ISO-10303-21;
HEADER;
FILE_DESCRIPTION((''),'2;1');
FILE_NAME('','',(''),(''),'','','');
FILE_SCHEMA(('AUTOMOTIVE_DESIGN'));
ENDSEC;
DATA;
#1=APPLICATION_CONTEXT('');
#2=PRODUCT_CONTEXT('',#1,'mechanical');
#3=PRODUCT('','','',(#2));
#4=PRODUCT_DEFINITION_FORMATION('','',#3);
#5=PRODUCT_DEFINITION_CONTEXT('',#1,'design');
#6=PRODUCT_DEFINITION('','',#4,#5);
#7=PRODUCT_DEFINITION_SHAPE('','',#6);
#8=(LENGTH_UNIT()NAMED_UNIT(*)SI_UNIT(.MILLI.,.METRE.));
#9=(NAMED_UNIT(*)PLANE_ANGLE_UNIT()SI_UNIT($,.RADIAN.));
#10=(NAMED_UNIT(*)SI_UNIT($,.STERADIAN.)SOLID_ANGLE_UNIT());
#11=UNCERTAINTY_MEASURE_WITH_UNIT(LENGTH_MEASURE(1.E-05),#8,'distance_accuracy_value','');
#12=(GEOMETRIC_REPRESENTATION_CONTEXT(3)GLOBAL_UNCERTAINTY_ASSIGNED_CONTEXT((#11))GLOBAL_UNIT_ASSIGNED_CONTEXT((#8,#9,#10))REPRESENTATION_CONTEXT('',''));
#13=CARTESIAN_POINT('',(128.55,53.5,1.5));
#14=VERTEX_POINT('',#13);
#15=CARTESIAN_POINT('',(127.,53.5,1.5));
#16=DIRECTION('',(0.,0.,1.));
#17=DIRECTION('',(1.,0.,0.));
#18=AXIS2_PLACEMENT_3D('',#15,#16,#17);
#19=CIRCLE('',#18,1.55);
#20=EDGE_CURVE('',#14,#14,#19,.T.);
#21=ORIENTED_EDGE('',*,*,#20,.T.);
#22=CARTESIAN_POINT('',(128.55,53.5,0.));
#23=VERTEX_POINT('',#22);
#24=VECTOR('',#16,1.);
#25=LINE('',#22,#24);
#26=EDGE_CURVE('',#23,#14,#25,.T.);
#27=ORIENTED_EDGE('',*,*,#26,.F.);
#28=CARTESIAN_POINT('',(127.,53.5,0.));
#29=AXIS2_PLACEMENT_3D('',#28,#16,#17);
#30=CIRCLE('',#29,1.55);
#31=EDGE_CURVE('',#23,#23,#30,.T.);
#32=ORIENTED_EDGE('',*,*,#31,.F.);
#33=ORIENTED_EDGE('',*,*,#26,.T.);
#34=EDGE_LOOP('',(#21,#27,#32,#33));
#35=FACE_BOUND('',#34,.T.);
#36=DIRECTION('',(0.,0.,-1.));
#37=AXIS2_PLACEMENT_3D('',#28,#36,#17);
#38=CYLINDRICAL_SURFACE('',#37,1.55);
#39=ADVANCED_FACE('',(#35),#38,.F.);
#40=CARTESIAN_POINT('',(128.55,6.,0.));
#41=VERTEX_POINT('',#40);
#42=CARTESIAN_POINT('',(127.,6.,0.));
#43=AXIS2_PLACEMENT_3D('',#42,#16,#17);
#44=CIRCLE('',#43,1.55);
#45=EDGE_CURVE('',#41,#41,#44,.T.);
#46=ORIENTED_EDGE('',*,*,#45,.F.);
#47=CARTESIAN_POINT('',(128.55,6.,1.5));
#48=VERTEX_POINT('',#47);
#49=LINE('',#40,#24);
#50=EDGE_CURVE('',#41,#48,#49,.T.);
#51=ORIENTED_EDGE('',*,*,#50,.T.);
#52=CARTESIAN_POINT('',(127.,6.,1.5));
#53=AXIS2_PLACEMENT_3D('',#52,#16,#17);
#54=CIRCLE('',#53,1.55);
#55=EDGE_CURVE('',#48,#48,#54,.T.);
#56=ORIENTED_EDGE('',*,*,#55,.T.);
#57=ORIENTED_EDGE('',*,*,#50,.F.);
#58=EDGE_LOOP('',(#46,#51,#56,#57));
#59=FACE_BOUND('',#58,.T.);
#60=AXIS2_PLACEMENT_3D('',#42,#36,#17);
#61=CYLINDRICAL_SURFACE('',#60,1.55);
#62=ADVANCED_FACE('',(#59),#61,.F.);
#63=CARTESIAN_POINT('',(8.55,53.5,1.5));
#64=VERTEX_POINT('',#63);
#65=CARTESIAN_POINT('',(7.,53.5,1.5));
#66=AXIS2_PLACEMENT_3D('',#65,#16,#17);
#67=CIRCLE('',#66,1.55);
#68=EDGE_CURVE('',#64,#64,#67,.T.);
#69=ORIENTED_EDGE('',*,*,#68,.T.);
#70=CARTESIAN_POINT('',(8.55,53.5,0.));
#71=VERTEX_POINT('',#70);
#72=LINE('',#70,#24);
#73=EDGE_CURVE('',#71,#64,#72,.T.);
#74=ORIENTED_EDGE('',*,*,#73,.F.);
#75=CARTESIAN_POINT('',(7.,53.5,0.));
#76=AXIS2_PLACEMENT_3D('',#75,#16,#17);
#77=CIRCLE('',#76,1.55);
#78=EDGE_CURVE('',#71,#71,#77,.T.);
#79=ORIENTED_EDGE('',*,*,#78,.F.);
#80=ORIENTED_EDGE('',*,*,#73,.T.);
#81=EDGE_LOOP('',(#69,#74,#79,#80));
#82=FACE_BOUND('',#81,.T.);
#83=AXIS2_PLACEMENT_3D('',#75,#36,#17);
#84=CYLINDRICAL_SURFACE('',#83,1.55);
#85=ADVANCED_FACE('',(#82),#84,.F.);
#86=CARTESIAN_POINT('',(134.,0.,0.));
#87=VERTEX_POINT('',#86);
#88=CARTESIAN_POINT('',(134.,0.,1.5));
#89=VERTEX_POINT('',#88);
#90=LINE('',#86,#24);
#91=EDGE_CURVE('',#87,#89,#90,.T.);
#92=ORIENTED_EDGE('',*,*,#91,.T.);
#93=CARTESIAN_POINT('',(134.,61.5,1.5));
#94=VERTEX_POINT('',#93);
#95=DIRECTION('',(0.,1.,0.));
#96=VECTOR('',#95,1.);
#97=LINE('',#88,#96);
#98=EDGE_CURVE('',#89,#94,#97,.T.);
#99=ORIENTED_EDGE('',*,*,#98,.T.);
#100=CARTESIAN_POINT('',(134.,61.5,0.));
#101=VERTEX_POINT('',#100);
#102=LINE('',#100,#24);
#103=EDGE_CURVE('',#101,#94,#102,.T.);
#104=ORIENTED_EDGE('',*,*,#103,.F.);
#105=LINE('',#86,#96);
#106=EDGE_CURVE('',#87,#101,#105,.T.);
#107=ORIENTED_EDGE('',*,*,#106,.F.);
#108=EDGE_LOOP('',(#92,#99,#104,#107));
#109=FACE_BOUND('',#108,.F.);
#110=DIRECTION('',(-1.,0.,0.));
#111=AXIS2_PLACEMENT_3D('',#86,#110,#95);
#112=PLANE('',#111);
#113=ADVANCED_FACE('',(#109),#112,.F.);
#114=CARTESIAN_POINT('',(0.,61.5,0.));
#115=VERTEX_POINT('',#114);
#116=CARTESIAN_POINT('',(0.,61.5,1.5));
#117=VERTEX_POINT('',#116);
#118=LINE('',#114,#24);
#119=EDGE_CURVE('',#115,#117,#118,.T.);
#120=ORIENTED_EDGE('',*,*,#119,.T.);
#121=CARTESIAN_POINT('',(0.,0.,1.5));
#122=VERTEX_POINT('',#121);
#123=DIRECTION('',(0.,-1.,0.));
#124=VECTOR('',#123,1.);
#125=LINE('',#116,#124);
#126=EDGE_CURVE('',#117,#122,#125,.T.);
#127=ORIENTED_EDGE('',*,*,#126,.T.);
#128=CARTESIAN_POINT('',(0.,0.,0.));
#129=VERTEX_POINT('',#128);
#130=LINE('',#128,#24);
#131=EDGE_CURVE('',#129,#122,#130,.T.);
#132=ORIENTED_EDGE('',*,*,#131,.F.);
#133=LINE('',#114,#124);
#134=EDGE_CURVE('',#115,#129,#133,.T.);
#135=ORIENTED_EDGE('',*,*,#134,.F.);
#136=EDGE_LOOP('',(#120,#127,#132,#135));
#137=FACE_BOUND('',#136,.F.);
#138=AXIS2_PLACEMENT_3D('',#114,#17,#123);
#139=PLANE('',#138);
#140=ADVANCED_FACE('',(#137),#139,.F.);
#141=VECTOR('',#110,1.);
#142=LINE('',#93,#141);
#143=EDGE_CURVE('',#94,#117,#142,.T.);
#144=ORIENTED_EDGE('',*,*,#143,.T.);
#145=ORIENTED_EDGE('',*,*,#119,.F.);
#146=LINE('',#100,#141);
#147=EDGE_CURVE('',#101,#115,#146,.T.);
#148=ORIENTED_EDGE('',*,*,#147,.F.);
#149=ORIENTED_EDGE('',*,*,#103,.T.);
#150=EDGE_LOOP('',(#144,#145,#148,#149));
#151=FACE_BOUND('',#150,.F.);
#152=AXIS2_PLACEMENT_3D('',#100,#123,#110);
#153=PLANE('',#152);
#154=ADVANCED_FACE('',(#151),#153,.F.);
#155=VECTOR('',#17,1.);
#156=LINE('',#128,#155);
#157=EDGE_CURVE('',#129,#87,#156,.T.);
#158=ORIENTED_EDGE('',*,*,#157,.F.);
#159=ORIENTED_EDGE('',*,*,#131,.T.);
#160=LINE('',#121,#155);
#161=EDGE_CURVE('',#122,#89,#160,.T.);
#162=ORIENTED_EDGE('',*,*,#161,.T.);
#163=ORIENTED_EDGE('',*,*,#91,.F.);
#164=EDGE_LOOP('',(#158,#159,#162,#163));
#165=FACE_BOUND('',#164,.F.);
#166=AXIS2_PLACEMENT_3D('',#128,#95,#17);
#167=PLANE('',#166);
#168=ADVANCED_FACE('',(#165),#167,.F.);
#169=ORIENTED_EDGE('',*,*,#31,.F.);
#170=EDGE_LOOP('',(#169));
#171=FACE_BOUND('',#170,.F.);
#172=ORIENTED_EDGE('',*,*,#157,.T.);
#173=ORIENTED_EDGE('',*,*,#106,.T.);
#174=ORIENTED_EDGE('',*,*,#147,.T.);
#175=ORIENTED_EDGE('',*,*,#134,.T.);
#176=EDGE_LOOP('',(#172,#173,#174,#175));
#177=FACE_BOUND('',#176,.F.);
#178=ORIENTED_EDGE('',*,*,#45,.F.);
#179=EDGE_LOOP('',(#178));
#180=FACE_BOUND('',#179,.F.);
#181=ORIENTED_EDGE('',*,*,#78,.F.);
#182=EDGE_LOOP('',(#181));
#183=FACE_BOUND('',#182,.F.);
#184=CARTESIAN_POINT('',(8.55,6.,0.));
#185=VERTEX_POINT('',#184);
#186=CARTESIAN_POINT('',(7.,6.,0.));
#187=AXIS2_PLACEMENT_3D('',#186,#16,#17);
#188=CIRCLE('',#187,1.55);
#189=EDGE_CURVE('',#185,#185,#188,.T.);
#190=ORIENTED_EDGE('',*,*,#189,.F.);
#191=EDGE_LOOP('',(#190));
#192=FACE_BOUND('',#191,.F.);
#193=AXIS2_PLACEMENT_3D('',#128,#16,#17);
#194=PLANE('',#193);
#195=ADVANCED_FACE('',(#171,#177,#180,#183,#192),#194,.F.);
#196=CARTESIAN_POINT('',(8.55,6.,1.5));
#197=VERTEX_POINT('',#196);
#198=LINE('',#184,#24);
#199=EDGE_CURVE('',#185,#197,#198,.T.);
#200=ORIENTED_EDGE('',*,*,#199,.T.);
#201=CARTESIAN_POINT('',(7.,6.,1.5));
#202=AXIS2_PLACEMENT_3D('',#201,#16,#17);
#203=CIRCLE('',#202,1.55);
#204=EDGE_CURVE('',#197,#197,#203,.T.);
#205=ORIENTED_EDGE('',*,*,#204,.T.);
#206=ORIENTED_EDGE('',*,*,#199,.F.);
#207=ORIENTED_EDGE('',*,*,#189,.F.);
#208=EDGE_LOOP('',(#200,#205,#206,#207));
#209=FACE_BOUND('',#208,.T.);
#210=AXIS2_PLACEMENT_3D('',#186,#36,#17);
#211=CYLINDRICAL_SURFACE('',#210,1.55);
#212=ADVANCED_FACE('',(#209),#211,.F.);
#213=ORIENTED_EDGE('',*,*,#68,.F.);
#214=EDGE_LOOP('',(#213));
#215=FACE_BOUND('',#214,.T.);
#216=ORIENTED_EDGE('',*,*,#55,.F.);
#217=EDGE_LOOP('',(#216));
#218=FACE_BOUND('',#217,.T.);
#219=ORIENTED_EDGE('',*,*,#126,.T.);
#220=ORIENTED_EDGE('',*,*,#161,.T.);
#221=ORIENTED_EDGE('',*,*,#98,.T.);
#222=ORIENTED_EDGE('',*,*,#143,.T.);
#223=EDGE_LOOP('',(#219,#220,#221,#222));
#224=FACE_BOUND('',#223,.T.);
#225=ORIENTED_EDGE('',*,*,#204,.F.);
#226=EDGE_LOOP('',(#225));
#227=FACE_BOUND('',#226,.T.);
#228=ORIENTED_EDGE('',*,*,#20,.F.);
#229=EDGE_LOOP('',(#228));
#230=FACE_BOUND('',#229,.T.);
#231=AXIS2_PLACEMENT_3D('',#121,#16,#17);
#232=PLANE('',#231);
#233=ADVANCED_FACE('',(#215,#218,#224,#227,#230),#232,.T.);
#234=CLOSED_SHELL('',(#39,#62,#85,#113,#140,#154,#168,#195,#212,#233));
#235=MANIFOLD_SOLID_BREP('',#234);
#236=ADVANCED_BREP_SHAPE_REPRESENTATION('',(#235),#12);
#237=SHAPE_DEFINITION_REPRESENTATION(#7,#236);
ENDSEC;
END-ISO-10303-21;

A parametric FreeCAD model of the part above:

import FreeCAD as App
import Part
import Sketcher

doc = App.newDocument("Part")
body = doc.addObject("PartDesign::Body", "Body")

sketch1 = doc.addObject("Sketcher::SketchObject", "Sketch")
body.addObject(sketch1)
sketch1.AttachmentSupport = (doc.XY_Plane, [""])
sketch1.MapMode = "FlatFace"
sketch1.addGeometry(Part.LineSegment(App.Vector(0, 61.5, 0), App.Vector(0, 0, 0)), False)
sketch1.addGeometry(Part.LineSegment(App.Vector(0, 0, 0), App.Vector(134, 0, 0)), False)
sketch1.addGeometry(Part.LineSegment(App.Vector(134, 0, 0), App.Vector(134, 61.5, 0)), False)
sketch1.addGeometry(Part.LineSegment(App.Vector(134, 61.5, 0), App.Vector(0, 61.5, 0)), False)
sketch1.addGeometry(Part.Circle(App.Vector(7, 6, 0), App.Vector(0, 0, 1), 1.55), False)
sketch1.addGeometry(Part.Circle(App.Vector(127, 6, 0), App.Vector(0, 0, 1), 1.55), False)
sketch1.addGeometry(Part.Circle(App.Vector(7, 53.5, 0), App.Vector(0, 0, 1), 1.55), False)
sketch1.addGeometry(Part.Circle(App.Vector(127, 53.5, 0), App.Vector(0, 0, 1), 1.55), False)
sketch1.addConstraint(Sketcher.Constraint("Coincident", 0, 2, 1, 1))
sketch1.addConstraint(Sketcher.Constraint("Coincident", 1, 2, 2, 1))
sketch1.addConstraint(Sketcher.Constraint("Coincident", 2, 2, 3, 1))
sketch1.addConstraint(Sketcher.Constraint("Coincident", 3, 2, 0, 1))
sketch1.addConstraint(Sketcher.Constraint("Vertical", 0))
sketch1.addConstraint(Sketcher.Constraint("Horizontal", 1))
sketch1.addConstraint(Sketcher.Constraint("Vertical", 2))
sketch1.addConstraint(Sketcher.Constraint("Horizontal", 3))
sketch1.addConstraint(Sketcher.Constraint("Coincident", 0, 2, -1, 1))
sketch1.addConstraint(Sketcher.Constraint("Equal", 4, 5))
sketch1.addConstraint(Sketcher.Constraint("Equal", 5, 6))
sketch1.addConstraint(Sketcher.Constraint("Equal", 6, 7))
sketch1.addConstraint(Sketcher.Constraint("Horizontal", 4, 3, 5, 3))
sketch1.addConstraint(Sketcher.Constraint("Horizontal", 6, 3, 7, 3))
sketch1.addConstraint(Sketcher.Constraint("Vertical", 4, 3, 6, 3))
sketch1.addConstraint(Sketcher.Constraint("Vertical", 5, 3, 7, 3))
sketch1.addConstraint(Sketcher.Constraint("Diameter", 4, 3.1))
sketch1.addConstraint(Sketcher.Constraint("DistanceX", 1, 1, 1, 2, 134.0))
sketch1.addConstraint(Sketcher.Constraint("DistanceY", 0, 2, 0, 1, 61.5))
sketch1.addConstraint(Sketcher.Constraint("DistanceX", -1, 1, 4, 3, 7.0))
sketch1.addConstraint(Sketcher.Constraint("DistanceY", -1, 1, 4, 3, 6.0))
sketch1.addConstraint(Sketcher.Constraint("DistanceX", 5, 3, 1, 2, 7.0))
sketch1.addConstraint(Sketcher.Constraint("DistanceY", 7, 3, 2, 2, 8.0))
pad1 = doc.addObject("PartDesign::Pad", "Pad")
body.addObject(pad1)
pad1.Profile = sketch1
pad1.Length = 1.5

doc.recompute()
